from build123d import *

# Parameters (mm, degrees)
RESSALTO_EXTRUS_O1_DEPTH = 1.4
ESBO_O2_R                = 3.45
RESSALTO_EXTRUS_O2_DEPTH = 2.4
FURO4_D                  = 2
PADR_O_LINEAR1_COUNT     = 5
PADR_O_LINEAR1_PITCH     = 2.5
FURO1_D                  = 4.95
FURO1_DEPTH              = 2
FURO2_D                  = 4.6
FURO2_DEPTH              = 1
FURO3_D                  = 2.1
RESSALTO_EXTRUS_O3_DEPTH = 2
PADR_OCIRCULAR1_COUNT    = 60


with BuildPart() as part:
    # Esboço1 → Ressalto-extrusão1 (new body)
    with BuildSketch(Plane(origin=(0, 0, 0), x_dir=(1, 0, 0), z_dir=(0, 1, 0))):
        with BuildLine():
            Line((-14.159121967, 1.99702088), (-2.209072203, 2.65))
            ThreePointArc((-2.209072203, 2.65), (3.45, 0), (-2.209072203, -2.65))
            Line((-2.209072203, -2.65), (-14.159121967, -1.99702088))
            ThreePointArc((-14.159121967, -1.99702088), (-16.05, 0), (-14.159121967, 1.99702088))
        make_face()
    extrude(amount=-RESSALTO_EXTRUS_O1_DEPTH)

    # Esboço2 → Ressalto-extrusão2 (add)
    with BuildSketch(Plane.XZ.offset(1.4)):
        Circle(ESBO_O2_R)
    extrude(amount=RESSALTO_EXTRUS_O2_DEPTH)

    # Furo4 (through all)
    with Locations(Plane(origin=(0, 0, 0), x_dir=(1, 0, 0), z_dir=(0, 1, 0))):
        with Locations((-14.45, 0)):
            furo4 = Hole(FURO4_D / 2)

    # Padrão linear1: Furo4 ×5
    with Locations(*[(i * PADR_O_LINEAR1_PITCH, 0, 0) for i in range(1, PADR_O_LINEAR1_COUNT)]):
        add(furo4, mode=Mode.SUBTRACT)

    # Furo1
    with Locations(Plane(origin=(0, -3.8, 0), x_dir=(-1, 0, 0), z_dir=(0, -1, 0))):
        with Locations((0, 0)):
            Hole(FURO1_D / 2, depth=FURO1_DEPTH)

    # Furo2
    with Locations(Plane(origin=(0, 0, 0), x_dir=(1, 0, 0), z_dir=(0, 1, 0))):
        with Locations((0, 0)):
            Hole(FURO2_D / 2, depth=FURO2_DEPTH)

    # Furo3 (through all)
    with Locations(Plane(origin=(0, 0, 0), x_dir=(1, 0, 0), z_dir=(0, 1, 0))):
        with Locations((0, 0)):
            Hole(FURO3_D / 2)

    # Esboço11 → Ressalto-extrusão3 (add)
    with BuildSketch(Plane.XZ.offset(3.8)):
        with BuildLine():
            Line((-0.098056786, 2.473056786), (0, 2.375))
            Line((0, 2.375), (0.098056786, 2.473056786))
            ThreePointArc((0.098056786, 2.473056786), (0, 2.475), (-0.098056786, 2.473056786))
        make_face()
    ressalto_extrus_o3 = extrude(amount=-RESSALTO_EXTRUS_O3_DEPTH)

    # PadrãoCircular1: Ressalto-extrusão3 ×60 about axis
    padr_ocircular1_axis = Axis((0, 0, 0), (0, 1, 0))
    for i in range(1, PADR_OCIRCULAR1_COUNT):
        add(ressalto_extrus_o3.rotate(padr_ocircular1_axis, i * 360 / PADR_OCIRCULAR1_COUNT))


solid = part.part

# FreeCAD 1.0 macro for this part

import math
import FreeCAD as App
import Part
import Sketcher
from FreeCAD import Vector
Q = App.Units.Quantity

doc = App.newDocument("Part")
params = doc.addObject("Spreadsheet::Sheet", "Params")
for row, (alias, value) in enumerate([
    ("sketch1_radius", "2 mm"),
    ("sketch1_radius2", "3.45 mm"),
    ("pad1_length", "1.4 mm"),
    ("sketch2_diameter", "6.9 mm"),
    ("pad2_length", "2.4 mm"),
    ("sketch3_diameter", "2 mm"),
    ("hole_diameter", "2 mm"),
    ("linearpattern_pitch", "2.5 mm"),
    ("sketch4_diameter", "4.95 mm"),
    ("hole2_diameter", "4.95 mm"),
    ("hole2_depth", "2 mm"),
    ("sketch5_diameter", "4.6 mm"),
    ("hole3_diameter", "4.6 mm"),
    ("hole3_depth", "1 mm"),
    ("sketch6_diameter", "2.1 mm"),
    ("hole4_diameter", "2.1 mm"),
    ("pad3_length", "2 mm"),
], start=1):
    params.set(f"A{row}", alias)
    params.set(f"B{row}", "=" + value)
    params.setAlias(f"B{row}", alias)

body = doc.addObject("PartDesign::Body", "Body")

sketch1 = body.newObject("Sketcher::SketchObject", "Sketch")
sketch1.AttachmentSupport = (doc.getObject("XZ_Plane"), [""])
sketch1.MapMode = "FlatFace"
sketch1.addGeometry(Part.LineSegment(Vector(-2.2, -2.6, 0), Vector(-14.2, -2, 0)), False)
sketch1.addGeometry(Part.ArcOfCircle(Part.Circle(Vector(-14.1, 0, 0), Vector(0, 0, 1), 2), math.radians(93), math.radians(267)), False)
sketch1.addGeometry(Part.LineSegment(Vector(-14.2, 2, 0), Vector(-2.2, 2.6, 0)), False)
sketch1.addGeometry(Part.ArcOfCircle(Part.Circle(Vector(0, 0, 0), Vector(0, 0, 1), 3.5), math.radians(-130), math.radians(130)), False)
sketch1.addConstraint(Sketcher.Constraint("Tangent", 0, 2, 1, 2))
sketch1.addConstraint(Sketcher.Constraint("Tangent", 1, 1, 2, 1))
sketch1.addConstraint(Sketcher.Constraint("Coincident", 2, 2, 3, 2))
sketch1.addConstraint(Sketcher.Constraint("Coincident", 3, 1, 0, 1))
sketch1.addConstraint(Sketcher.Constraint("Coincident", 3, 3, -1, 1))
sketch1.addConstraint(Sketcher.Constraint("Symmetric", 0, 2, 1, 1, -1))
sketch1.addConstraint(Sketcher.Constraint("Radius", 1, Q("2 mm")))
sketch1.addConstraint(Sketcher.Constraint("Radius", 3, Q("3.45 mm")))
sketch1.addConstraint(Sketcher.Constraint("DistanceY", 3, 1, 2, 2, Q("5.3 mm")))
sketch1.addConstraint(Sketcher.Constraint("DistanceX", 1, 3, -1, 1, Q("14.05 mm")))
sketch1.setExpression("Constraints[6]", "Params.sketch1_radius")
sketch1.setExpression("Constraints[7]", "Params.sketch1_radius2")
pad1 = body.newObject("PartDesign::Pad", "Pad")
pad1.Profile = sketch1
pad1.setExpression("Length", "Params.pad1_length")

sketch2 = body.newObject("Sketcher::SketchObject", "Sketch001")
sketch2.AttachmentSupport = (doc.getObject("XZ_Plane"), [""])
sketch2.MapMode = "FlatFace"
sketch2.AttachmentOffset = App.Placement(Vector(0, 0, 1.4), App.Rotation())
sketch2.addGeometry(Part.Circle(Vector(0, 0, 0), Vector(0, 0, 1), 3.5), False)
sketch2.addConstraint(Sketcher.Constraint("Coincident", 0, 3, -1, 1))
sketch2.addConstraint(Sketcher.Constraint("Diameter", 0, Q("6.9 mm")))
sketch2.setExpression("Constraints[1]", "Params.sketch2_diameter")
pad2 = body.newObject("PartDesign::Pad", "Pad001")
pad2.Profile = sketch2
pad2.setExpression("Length", "Params.pad2_length")

sketch3 = body.newObject("Sketcher::SketchObject", "Sketch002")
sketch3.AttachmentSupport = (doc.getObject("XZ_Plane"), [""])
sketch3.MapMode = "FlatFace"
sketch3.addGeometry(Part.Circle(Vector(-14.4, 0, 0), Vector(0, 0, 1), 1), False)
sketch3.addConstraint(Sketcher.Constraint("PointOnObject", 0, 3, -1))
sketch3.addConstraint(Sketcher.Constraint("Diameter", 0, Q("2 mm")))
sketch3.addConstraint(Sketcher.Constraint("DistanceX", 0, 3, -1, 1, Q("14.45 mm")))
sketch3.setExpression("Constraints[1]", "Params.sketch3_diameter")
doc.recompute()
hole = body.newObject("PartDesign::Hole", "Hole")
hole.Profile = sketch3
hole.ThreadType = "None"
hole.setExpression("Diameter", "Params.hole_diameter")
hole.DepthType = "ThroughAll"
hole.Reversed = True
doc.recompute()

linearpattern = body.newObject("PartDesign::LinearPattern", "LinearPattern")
linearpattern.Originals = [hole]
linearpattern.Direction = (doc.getObject("X_Axis"), [""])
linearpattern.Mode = "offset"
linearpattern.setExpression("Offset", "Params.linearpattern_pitch")
linearpattern.Occurrences = 5
body.Tip = linearpattern

sketch4 = body.newObject("Sketcher::SketchObject", "Sketch003")
sketch4.AttachmentSupport = (doc.getObject("XZ_Plane"), [""])
sketch4.MapMode = "FlatFace"
sketch4.AttachmentOffset = App.Placement(Vector(0, 0, 3.8), App.Rotation())
sketch4.addGeometry(Part.Circle(Vector(0, 0, 0), Vector(0, 0, 1), 2.5), False)
sketch4.addConstraint(Sketcher.Constraint("Coincident", 0, 3, -1, 1))
sketch4.addConstraint(Sketcher.Constraint("Diameter", 0, Q("4.95 mm")))
sketch4.setExpression("Constraints[1]", "Params.sketch4_diameter")
doc.recompute()
hole2 = body.newObject("PartDesign::Hole", "Hole001")
hole2.Profile = sketch4
hole2.ThreadType = "None"
hole2.setExpression("Diameter", "Params.hole2_diameter")
hole2.DepthType = "Dimension"
hole2.setExpression("Depth", "Params.hole2_depth")
hole2.DrillPoint = "Flat"

sketch5 = body.newObject("Sketcher::SketchObject", "Sketch004")
sketch5.AttachmentSupport = (doc.getObject("XZ_Plane"), [""])
sketch5.MapMode = "FlatFace"
sketch5.addGeometry(Part.Circle(Vector(0, 0, 0), Vector(0, 0, 1), 2.3), False)
sketch5.addConstraint(Sketcher.Constraint("Coincident", 0, 3, -1, 1))
sketch5.addConstraint(Sketcher.Constraint("Diameter", 0, Q("4.6 mm")))
sketch5.setExpression("Constraints[1]", "Params.sketch5_diameter")
doc.recompute()
hole3 = body.newObject("PartDesign::Hole", "Hole002")
hole3.Profile = sketch5
hole3.ThreadType = "None"
hole3.setExpression("Diameter", "Params.hole3_diameter")
hole3.DepthType = "Dimension"
hole3.setExpression("Depth", "Params.hole3_depth")
hole3.DrillPoint = "Flat"
hole3.Reversed = True

sketch6 = body.newObject("Sketcher::SketchObject", "Sketch005")
sketch6.AttachmentSupport = (doc.getObject("XZ_Plane"), [""])
sketch6.MapMode = "FlatFace"
sketch6.addGeometry(Part.Circle(Vector(0, 0, 0), Vector(0, 0, 1), 1.1), False)
sketch6.addConstraint(Sketcher.Constraint("Coincident", 0, 3, -1, 1))
sketch6.addConstraint(Sketcher.Constraint("Diameter", 0, Q("2.1 mm")))
sketch6.setExpression("Constraints[1]", "Params.sketch6_diameter")
doc.recompute()
hole4 = body.newObject("PartDesign::Hole", "Hole003")
hole4.Profile = sketch6
hole4.ThreadType = "None"
hole4.setExpression("Diameter", "Params.hole4_diameter")
hole4.DepthType = "ThroughAll"
hole4.Reversed = True

sketch7 = body.newObject("Sketcher::SketchObject", "Sketch006")
sketch7.AttachmentSupport = (doc.getObject("XZ_Plane"), [""])
sketch7.MapMode = "FlatFace"
sketch7.AttachmentOffset = App.Placement(Vector(0, 0, 3.8), App.Rotation())
sketch7.addGeometry(Part.LineSegment(Vector(-0.1, 2.47, 0), Vector(0, 2.38, 0)), False)
sketch7.addGeometry(Part.LineSegment(Vector(0, 2.38, 0), Vector(0.1, 2.47, 0)), False)
sketch7.addGeometry(Part.ArcOfCircle(Part.Circle(Vector(0, 0, 0), Vector(0, 0, 1), 2.48), math.radians(87.73), math.radians(92.27)), False)
sketch7.addConstraint(Sketcher.Constraint("Coincident", 0, 2, 1, 1))
sketch7.addConstraint(Sketcher.Constraint("Coincident", 1, 2, 2, 1))
sketch7.addConstraint(Sketcher.Constraint("Coincident", 2, 2, 0, 1))
sketch7.addConstraint(Sketcher.Constraint("Coincident", 2, 3, -1, 1))
sketch7.addConstraint(Sketcher.Constraint("PointOnObject", 0, 2, -2))
sketch7.addConstraint(Sketcher.Constraint("Perpendicular", 0, 1))
sketch7.addConstraint(Sketcher.Constraint("Horizontal", 1, 2, 2, 2))
sketch7.addConstraint(Sketcher.Constraint("Radius", 2, Q("2.475 mm")))
sketch7.addConstraint(Sketcher.Constraint("DistanceY", -1, 1, 0, 2, Q("2.375 mm")))
pad3 = body.newObject("PartDesign::Pad", "Pad002")
pad3.Profile = sketch7
pad3.setExpression("Length", "Params.pad3_length")
pad3.Reversed = True
doc.recompute()

polarpattern = body.newObject("PartDesign::PolarPattern", "PolarPattern")
polarpattern.Originals = [pad3]
polarpattern.Axis = (doc.getObject("Y_Axis"), [""])
polarpattern.Angle = 360
polarpattern.Occurrences = 60
body.Tip = polarpattern

doc.recompute()
